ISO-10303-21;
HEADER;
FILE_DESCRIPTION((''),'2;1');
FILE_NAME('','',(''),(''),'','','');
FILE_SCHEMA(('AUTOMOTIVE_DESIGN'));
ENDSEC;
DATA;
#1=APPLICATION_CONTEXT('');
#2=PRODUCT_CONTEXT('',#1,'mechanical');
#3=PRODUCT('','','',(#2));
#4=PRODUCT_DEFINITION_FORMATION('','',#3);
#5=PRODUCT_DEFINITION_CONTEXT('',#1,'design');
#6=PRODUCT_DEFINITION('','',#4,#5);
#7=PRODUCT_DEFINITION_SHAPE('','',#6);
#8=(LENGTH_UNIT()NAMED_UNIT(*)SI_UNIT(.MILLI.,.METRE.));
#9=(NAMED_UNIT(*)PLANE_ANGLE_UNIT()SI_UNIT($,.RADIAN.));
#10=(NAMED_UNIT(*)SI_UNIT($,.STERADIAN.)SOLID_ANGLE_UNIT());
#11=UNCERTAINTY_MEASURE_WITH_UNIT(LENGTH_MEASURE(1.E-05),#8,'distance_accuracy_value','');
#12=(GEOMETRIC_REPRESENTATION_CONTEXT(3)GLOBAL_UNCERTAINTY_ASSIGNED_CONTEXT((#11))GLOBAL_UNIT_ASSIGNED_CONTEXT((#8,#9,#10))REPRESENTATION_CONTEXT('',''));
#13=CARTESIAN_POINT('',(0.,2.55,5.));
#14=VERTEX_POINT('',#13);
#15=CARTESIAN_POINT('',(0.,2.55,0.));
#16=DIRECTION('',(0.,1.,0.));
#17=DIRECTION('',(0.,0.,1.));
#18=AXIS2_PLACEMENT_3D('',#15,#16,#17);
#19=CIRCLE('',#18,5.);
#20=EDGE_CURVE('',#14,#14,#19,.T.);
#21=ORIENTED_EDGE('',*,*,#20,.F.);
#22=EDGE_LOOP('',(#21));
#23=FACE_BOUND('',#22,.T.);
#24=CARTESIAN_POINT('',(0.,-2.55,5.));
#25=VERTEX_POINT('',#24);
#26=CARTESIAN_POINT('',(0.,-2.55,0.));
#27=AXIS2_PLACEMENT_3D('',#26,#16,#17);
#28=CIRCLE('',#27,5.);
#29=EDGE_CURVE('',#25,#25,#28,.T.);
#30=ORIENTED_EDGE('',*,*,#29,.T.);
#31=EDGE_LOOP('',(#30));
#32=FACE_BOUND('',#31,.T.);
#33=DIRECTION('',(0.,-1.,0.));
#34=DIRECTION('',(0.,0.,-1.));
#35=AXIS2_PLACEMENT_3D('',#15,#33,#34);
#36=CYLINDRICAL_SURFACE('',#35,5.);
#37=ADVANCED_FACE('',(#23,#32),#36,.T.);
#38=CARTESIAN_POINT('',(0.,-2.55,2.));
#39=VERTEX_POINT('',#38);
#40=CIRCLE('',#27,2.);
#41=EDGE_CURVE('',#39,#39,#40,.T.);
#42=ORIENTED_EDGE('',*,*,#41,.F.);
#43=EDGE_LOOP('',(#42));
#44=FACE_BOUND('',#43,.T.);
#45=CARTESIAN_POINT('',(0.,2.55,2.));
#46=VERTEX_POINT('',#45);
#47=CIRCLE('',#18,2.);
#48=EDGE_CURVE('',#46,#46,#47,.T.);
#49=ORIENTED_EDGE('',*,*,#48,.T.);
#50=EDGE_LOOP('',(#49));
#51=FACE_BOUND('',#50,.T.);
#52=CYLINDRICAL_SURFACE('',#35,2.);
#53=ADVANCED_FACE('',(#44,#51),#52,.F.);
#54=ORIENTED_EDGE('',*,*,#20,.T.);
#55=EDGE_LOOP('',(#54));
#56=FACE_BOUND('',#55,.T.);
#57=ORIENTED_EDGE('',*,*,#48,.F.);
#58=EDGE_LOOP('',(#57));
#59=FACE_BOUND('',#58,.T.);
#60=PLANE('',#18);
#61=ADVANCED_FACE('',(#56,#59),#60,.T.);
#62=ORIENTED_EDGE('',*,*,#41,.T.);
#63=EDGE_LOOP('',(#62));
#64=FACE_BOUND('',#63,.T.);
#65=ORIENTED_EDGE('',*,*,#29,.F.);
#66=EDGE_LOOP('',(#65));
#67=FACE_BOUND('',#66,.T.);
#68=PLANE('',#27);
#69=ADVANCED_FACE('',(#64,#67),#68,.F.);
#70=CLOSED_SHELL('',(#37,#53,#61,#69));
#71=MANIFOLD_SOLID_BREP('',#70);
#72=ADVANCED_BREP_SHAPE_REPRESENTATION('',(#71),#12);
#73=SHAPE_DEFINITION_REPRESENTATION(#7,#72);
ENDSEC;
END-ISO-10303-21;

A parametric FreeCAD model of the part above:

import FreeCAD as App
import Part
import Sketcher

V = App.Vector
Q = App.Units.Quantity

doc = App.newDocument("Part")
params = doc.addObject("Spreadsheet::Sheet", "Params")
for row, (alias, value) in enumerate([
    ("sketch1_diameter", "10 mm"),
    ("sketch1_diameter2", "4 mm"),
    ("pad1_length", "5.1 mm"),
], start=1):
    params.set(f"A{row}", alias)
    params.set(f"B{row}", "=" + value)
    params.setAlias(f"B{row}", alias)

body = doc.addObject("PartDesign::Body", "Body")

# Sketch on XZ plane
sketch1 = doc.addObject("Sketcher::SketchObject", "Sketch")
body.addObject(sketch1)
sketch1.AttachmentSupport = (doc.XZ_Plane, [""])
sketch1.MapMode = "FlatFace"
sketch1.addGeometry(Part.Circle(V(0, 0, 0), V(0, 0, 1), 5), False)
sketch1.addGeometry(Part.Circle(V(0, 0, 0), V(0, 0, 1), 2), False)
sketch1.addConstraint(Sketcher.Constraint("Coincident", 0, 3, -1, 1))
sketch1.addConstraint(Sketcher.Constraint("Coincident", 1, 3, -1, 1))
sketch1.addConstraint(Sketcher.Constraint("Diameter", 0, Q("10 mm")))
sketch1.addConstraint(Sketcher.Constraint("Diameter", 1, Q("4 mm")))
sketch1.setExpression("Constraints[2]", "Params.sketch1_diameter")
sketch1.setExpression("Constraints[3]", "Params.sketch1_diameter2")
pad1 = doc.addObject("PartDesign::Pad", "Pad")
body.addObject(pad1)
pad1.Profile = sketch1
pad1.setExpression("Length", "Params.pad1_length")
pad1.Midplane = True

doc.recompute()
